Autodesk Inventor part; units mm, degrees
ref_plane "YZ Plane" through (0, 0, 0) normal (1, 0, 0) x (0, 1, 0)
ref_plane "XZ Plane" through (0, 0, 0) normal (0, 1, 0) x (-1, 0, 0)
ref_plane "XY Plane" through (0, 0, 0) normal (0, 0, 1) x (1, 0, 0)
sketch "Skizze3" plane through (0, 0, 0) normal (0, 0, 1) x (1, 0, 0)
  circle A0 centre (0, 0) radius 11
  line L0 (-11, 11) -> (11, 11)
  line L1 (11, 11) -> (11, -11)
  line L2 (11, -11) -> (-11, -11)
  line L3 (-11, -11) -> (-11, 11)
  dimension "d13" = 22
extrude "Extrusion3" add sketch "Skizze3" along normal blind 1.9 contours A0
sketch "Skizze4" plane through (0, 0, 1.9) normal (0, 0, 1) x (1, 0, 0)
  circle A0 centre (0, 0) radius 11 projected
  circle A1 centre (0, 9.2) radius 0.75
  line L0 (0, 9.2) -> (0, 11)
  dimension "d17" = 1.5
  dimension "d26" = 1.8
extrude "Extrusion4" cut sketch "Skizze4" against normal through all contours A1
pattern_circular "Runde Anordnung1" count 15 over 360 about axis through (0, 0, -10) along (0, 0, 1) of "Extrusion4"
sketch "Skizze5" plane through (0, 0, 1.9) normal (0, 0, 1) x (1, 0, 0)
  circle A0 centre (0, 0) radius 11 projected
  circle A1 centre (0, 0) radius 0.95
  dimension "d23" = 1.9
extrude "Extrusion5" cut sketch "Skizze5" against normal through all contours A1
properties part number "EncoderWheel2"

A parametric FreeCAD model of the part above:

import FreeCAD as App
import Part
import Sketcher

doc = App.newDocument("Part")
params = doc.addObject("Spreadsheet::Sheet", "Params")
for row, (alias, value) in enumerate([
    ("sketch1_diameter", "22 mm"),
    ("pad1_length", "1.9 mm"),
    ("sketch2_diameter", "1.5 mm"),
    ("sketch3_diameter", "1.9 mm"),
], start=1):
    params.set(f"A{row}", alias)
    params.set(f"B{row}", "=" + value)
    params.setAlias(f"B{row}", alias)

body = doc.addObject("PartDesign::Body", "Body")

sketch1 = doc.addObject("Sketcher::SketchObject", "Sketch")
body.addObject(sketch1)
sketch1.AttachmentSupport = (doc.XY_Plane, [""])
sketch1.MapMode = "FlatFace"
sketch1.addGeometry(Part.Circle(App.Vector(0, 0, 0), App.Vector(0, 0, 1), 11), False)
sketch1.addConstraint([
    Sketcher.Constraint("Coincident", 0, 3, -1, 1),
    Sketcher.Constraint("Diameter", 0, 22.0),
])
sketch1.setExpression("Constraints[1]", "Params.sketch1_diameter")
pad1 = doc.addObject("PartDesign::Pad", "Pad")
body.addObject(pad1)
pad1.Profile = sketch1
pad1.setExpression("Length", "Params.pad1_length")

sketch2 = doc.addObject("Sketcher::SketchObject", "Sketch001")
body.addObject(sketch2)
sketch2.AttachmentSupport = (doc.XY_Plane, [""])
sketch2.MapMode = "FlatFace"
sketch2.AttachmentOffset = App.Placement(App.Vector(0, 0, 1.9), App.Rotation())
sketch2.addGeometry(Part.Circle(App.Vector(0, 9.2, 0), App.Vector(0, 0, 1), 0.8), False)
sketch2.addConstraint([
    Sketcher.Constraint("PointOnObject", 0, 3, -2),
    Sketcher.Constraint("Diameter", 0, 1.5),
    Sketcher.Constraint("DistanceY", -1, 1, 0, 3, 9.2),
])
sketch2.setExpression("Constraints[1]", "Params.sketch2_diameter")
pocket1 = doc.addObject("PartDesign::Pocket", "Pocket")
body.addObject(pocket1)
pocket1.Profile = sketch2
pocket1.Type = "ThroughAll"
doc.recompute()

polarpattern = doc.addObject("PartDesign::PolarPattern", "PolarPattern")
body.addObject(polarpattern)
polarpattern.Originals = [pocket1]
polarpattern.Axis = (doc.Z_Axis, [""])
polarpattern.Angle = 360
polarpattern.Occurrences = 15
body.Tip = polarpattern

sketch3 = doc.addObject("Sketcher::SketchObject", "Sketch002")
body.addObject(sketch3)
sketch3.AttachmentSupport = (doc.XY_Plane, [""])
sketch3.MapMode = "FlatFace"
sketch3.AttachmentOffset = App.Placement(App.Vector(0, 0, 1.9), App.Rotation())
sketch3.addGeometry(Part.Circle(App.Vector(0, 0, 0), App.Vector(0, 0, 1), 0.9), False)
sketch3.addConstraint([
    Sketcher.Constraint("Coincident", 0, 3, -1, 1),
    Sketcher.Constraint("Diameter", 0, 1.9),
])
sketch3.setExpression("Constraints[1]", "Params.sketch3_diameter")
pocket2 = doc.addObject("PartDesign::Pocket", "Pocket001")
body.addObject(pocket2)
pocket2.Profile = sketch3
pocket2.Type = "ThroughAll"

doc.recompute()
